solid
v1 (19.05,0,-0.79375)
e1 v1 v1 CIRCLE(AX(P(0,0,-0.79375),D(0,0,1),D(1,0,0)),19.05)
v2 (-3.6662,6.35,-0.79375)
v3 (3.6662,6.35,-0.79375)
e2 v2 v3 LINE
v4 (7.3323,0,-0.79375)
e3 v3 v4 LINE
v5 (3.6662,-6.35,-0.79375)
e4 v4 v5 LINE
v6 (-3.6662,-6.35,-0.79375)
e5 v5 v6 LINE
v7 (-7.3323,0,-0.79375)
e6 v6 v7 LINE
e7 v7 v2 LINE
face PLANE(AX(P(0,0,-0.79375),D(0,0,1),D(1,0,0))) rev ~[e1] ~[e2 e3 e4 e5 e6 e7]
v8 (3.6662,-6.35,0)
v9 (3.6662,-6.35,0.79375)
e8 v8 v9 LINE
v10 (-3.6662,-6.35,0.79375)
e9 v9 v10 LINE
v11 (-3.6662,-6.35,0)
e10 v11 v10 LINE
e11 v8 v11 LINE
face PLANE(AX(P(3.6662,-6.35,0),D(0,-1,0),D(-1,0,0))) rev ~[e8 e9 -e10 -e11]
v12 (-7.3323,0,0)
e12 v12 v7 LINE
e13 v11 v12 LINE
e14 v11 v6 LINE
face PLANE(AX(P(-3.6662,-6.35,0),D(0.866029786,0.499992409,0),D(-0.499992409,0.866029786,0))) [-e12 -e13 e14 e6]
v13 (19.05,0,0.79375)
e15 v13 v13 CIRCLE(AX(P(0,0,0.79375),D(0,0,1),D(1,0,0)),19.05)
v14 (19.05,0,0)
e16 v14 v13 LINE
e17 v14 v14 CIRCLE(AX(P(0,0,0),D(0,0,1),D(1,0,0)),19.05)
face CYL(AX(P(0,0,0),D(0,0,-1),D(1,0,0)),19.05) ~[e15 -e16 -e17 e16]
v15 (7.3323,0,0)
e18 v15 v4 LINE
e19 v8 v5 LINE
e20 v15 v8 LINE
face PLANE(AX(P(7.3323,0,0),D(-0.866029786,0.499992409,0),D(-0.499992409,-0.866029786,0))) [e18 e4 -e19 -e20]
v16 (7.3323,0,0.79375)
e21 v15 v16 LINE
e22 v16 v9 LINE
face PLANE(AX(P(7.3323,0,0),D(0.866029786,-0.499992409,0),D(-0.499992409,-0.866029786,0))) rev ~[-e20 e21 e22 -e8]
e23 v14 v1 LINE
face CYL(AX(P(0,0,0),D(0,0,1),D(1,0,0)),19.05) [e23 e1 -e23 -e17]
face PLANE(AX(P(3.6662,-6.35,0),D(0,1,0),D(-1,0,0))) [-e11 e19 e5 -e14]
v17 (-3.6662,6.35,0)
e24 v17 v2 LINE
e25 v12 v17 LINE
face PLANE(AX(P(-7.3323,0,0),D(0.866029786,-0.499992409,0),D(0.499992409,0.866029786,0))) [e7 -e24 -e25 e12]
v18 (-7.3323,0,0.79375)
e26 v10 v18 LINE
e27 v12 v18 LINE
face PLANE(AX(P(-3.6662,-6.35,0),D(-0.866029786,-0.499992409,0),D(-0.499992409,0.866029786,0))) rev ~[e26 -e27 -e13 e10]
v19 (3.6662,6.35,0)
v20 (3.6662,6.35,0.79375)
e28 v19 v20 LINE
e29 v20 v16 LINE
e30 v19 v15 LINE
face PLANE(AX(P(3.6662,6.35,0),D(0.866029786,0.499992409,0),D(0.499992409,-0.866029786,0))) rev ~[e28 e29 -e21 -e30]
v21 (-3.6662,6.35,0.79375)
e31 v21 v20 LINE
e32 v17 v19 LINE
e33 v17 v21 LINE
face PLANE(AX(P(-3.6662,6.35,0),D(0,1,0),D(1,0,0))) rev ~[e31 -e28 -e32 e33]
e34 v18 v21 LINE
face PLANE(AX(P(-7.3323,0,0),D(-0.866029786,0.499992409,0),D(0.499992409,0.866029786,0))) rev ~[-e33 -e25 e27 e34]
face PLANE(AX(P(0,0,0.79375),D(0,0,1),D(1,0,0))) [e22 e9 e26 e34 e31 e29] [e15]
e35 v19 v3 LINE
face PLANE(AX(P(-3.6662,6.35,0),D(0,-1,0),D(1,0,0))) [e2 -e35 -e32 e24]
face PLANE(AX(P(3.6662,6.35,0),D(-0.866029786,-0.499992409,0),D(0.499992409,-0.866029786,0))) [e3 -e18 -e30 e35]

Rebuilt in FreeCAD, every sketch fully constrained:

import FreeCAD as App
import Part
import Sketcher

V = App.Vector
Q = App.Units.Quantity


def add_polygon(sketch, points):
    """Adds a closed chain of lines whose ends are joined by coincident constraints."""
    first, n = sketch.GeometryCount, len(points)
    for a, b in zip(points, points[1:] + points[:1]):
        sketch.addGeometry(Part.LineSegment(App.Vector(*a, 0), App.Vector(*b, 0)), False)
    for i in range(n):
        sketch.addConstraint(Sketcher.Constraint("Coincident", first + i, 2, first + (i + 1) % n, 1))

doc = App.newDocument("Part")
body = doc.addObject("PartDesign::Body", "Body")

sketch1 = doc.addObject("Sketcher::SketchObject", "Sketch")
body.addObject(sketch1)
sketch1.AttachmentSupport = (doc.XY_Plane, [""])
sketch1.MapMode = "FlatFace"
sketch1.addGeometry(Part.Circle(V(0, 0, 0), V(0, 0, 1), 19.05), False)
add_polygon(sketch1, [(-3.6662, 6.35), (3.6662, 6.35), (7.3323, 0), (3.6662, -6.35), (-3.6662, -6.35), (-7.3323, 0)])
sketch1.addConstraint(Sketcher.Constraint("Horizontal", 1))
sketch1.addConstraint(Sketcher.Constraint("Horizontal", 4))
sketch1.addConstraint(Sketcher.Constraint("Coincident", 0, 3, -1, 1))
sketch1.addConstraint(Sketcher.Constraint("Symmetric", 1, 2, 4, 2, -1, 1))
sketch1.addConstraint(Sketcher.Constraint("Symmetric", 2, 2, 5, 2, -1, 1))
sketch1.addConstraint(Sketcher.Constraint("PointOnObject", 2, 2, -1))
sketch1.addConstraint(Sketcher.Constraint("Parallel", 3, 6))
sketch1.addConstraint(Sketcher.Constraint("Vertical", 1, 2, 3, 2))
sketch1.addConstraint(Sketcher.Constraint("Diameter", 0, Q("1.5 in")))
sketch1.addConstraint(Sketcher.Constraint("DistanceY", 3, 2, 1, 2, Q("0.5 in")))
sketch1.addConstraint(Sketcher.Constraint("Angle", 2, Q("-60.0005 deg")))
sketch1.addConstraint(Sketcher.Constraint("DistanceX", 4, 2, 2, 2, Q("0.433 in")))
pad1 = doc.addObject("PartDesign::Pad", "Pad")
body.addObject(pad1)
pad1.Profile = sketch1
pad1.Length = Q("0.0625 in")
pad1.Midplane = True

doc.recompute()
